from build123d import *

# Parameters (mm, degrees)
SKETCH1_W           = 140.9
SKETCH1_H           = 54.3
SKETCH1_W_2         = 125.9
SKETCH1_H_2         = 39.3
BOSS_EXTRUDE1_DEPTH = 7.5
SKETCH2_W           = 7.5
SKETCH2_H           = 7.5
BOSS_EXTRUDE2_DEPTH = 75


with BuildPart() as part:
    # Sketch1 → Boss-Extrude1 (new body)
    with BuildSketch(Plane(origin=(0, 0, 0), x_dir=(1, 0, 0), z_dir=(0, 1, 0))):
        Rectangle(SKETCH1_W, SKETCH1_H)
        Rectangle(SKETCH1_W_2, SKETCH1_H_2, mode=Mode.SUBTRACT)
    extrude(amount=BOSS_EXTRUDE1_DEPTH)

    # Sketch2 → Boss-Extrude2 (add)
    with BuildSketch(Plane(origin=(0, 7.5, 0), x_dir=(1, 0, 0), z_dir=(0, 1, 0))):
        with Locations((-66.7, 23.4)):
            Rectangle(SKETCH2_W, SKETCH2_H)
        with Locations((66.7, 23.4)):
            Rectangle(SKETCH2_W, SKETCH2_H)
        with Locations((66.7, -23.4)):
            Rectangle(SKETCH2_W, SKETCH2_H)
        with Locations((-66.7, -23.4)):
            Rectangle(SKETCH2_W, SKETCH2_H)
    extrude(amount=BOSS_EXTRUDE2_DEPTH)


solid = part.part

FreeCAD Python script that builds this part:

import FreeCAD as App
import Part
import Sketcher

doc = App.newDocument("Part")
params = doc.addObject("Spreadsheet::Sheet", "Params")
for row, (alias, value) in enumerate([
    ("sketch1_width", "140.9 mm"),
    ("sketch1_width2", "125.9 mm"),
    ("sketch1_height", "54.3 mm"),
    ("sketch1_height2", "39.3 mm"),
    ("pad1_length", "7.5 mm"),
    ("sketch2_width", "7.5 mm"),
    ("pad2_length", "75 mm"),
], start=1):
    params.set(f"A{row}", alias)
    params.set(f"B{row}", "=" + value)
    params.setAlias(f"B{row}", alias)

body = doc.addObject("PartDesign::Body", "Body")

# Sketch on XZ plane
sketch1 = body.newObject("Sketcher::SketchObject", "Sketch")
sketch1.AttachmentSupport = (doc.getObject("XZ_Plane"), [""])
sketch1.MapMode = "FlatFace"
sketch1.addGeometry(Part.LineSegment(App.Vector(-70.45, -27.15, 0), App.Vector(-70.45, 27.15, 0)), False)
sketch1.addGeometry(Part.LineSegment(App.Vector(-70.45, 27.15, 0), App.Vector(70.45, 27.15, 0)), False)
sketch1.addGeometry(Part.LineSegment(App.Vector(70.45, 27.15, 0), App.Vector(70.45, -27.15, 0)), False)
sketch1.addGeometry(Part.LineSegment(App.Vector(70.45, -27.15, 0), App.Vector(-70.45, -27.15, 0)), False)
sketch1.addGeometry(Part.LineSegment(App.Vector(62.95, 19.65, 0), App.Vector(-62.95, 19.65, 0)), False)
sketch1.addGeometry(Part.LineSegment(App.Vector(-62.95, 19.65, 0), App.Vector(-62.95, -19.65, 0)), False)
sketch1.addGeometry(Part.LineSegment(App.Vector(-62.95, -19.65, 0), App.Vector(62.95, -19.65, 0)), False)
sketch1.addGeometry(Part.LineSegment(App.Vector(62.95, -19.65, 0), App.Vector(62.95, 19.65, 0)), False)
sketch1.addConstraint(Sketcher.Constraint("Coincident", 0, 2, 1, 1))
sketch1.addConstraint(Sketcher.Constraint("Coincident", 1, 2, 2, 1))
sketch1.addConstraint(Sketcher.Constraint("Coincident", 2, 2, 3, 1))
sketch1.addConstraint(Sketcher.Constraint("Coincident", 3, 2, 0, 1))
sketch1.addConstraint(Sketcher.Constraint("Coincident", 4, 2, 5, 1))
sketch1.addConstraint(Sketcher.Constraint("Coincident", 5, 2, 6, 1))
sketch1.addConstraint(Sketcher.Constraint("Coincident", 6, 2, 7, 1))
sketch1.addConstraint(Sketcher.Constraint("Coincident", 7, 2, 4, 1))
sketch1.addConstraint(Sketcher.Constraint("Vertical", 0))
sketch1.addConstraint(Sketcher.Constraint("Horizontal", 1))
sketch1.addConstraint(Sketcher.Constraint("Vertical", 2))
sketch1.addConstraint(Sketcher.Constraint("Horizontal", 3))
sketch1.addConstraint(Sketcher.Constraint("Horizontal", 4))
sketch1.addConstraint(Sketcher.Constraint("Vertical", 5))
sketch1.addConstraint(Sketcher.Constraint("Horizontal", 6))
sketch1.addConstraint(Sketcher.Constraint("Vertical", 7))
sketch1.addConstraint(Sketcher.Constraint("Symmetric", 0, 2, 2, 2, -1, 1))
sketch1.addConstraint(Sketcher.Constraint("Symmetric", 4, 2, 6, 2, -1, 1))
sketch1.addConstraint(Sketcher.Constraint("DistanceX", 1, 1, 1, 2, 140.9))
sketch1.addConstraint(Sketcher.Constraint("DistanceX", 4, 2, 4, 1, 125.9))
sketch1.addConstraint(Sketcher.Constraint("DistanceY", 0, 1, 0, 2, 54.3))
sketch1.addConstraint(Sketcher.Constraint("DistanceY", 5, 2, 5, 1, 39.3))
sketch1.setExpression("Constraints[18]", "Params.sketch1_width")
sketch1.setExpression("Constraints[19]", "Params.sketch1_width2")
sketch1.setExpression("Constraints[20]", "Params.sketch1_height")
sketch1.setExpression("Constraints[21]", "Params.sketch1_height2")
pad1 = body.newObject("PartDesign::Pad", "Pad")
pad1.Profile = sketch1
pad1.setExpression("Length", "Params.pad1_length")
pad1.Reversed = True

# Sketch on XZ plane
sketch2 = body.newObject("Sketcher::SketchObject", "Sketch001")
sketch2.AttachmentSupport = (doc.getObject("XZ_Plane"), [""])
sketch2.MapMode = "FlatFace"
sketch2.AttachmentOffset = App.Placement(App.Vector(0, 0, -7.5), App.Rotation())
sketch2.addGeometry(Part.LineSegment(App.Vector(-70.45, -27.15, 0), App.Vector(-70.45, -19.65, 0)), False)
sketch2.addGeometry(Part.LineSegment(App.Vector(-70.45, -19.65, 0), App.Vector(-62.95, -19.65, 0)), False)
sketch2.addGeometry(Part.LineSegment(App.Vector(-62.95, -19.65, 0), App.Vector(-62.95, -27.15, 0)), False)
sketch2.addGeometry(Part.LineSegment(App.Vector(-62.95, -27.15, 0), App.Vector(-70.45, -27.15, 0)), False)
sketch2.addGeometry(Part.LineSegment(App.Vector(62.95, -27.15, 0), App.Vector(62.95, -19.65, 0)), False)
sketch2.addGeometry(Part.LineSegment(App.Vector(62.95, -19.65, 0), App.Vector(70.45, -19.65, 0)), False)
sketch2.addGeometry(Part.LineSegment(App.Vector(70.45, -19.65, 0), App.Vector(70.45, -27.15, 0)), False)
sketch2.addGeometry(Part.LineSegment(App.Vector(70.45, -27.15, 0), App.Vector(62.95, -27.15, 0)), False)
sketch2.addGeometry(Part.LineSegment(App.Vector(62.95, 19.65, 0), App.Vector(62.95, 27.15, 0)), False)
sketch2.addGeometry(Part.LineSegment(App.Vector(62.95, 27.15, 0), App.Vector(70.45, 27.15, 0)), False)
sketch2.addGeometry(Part.LineSegment(App.Vector(70.45, 27.15, 0), App.Vector(70.45, 19.65, 0)), False)
sketch2.addGeometry(Part.LineSegment(App.Vector(70.45, 19.65, 0), App.Vector(62.95, 19.65, 0)), False)
sketch2.addGeometry(Part.LineSegment(App.Vector(-70.45, 19.65, 0), App.Vector(-70.45, 27.15, 0)), False)
sketch2.addGeometry(Part.LineSegment(App.Vector(-70.45, 27.15, 0), App.Vector(-62.95, 27.15, 0)), False)
sketch2.addGeometry(Part.LineSegment(App.Vector(-62.95, 27.15, 0), App.Vector(-62.95, 19.65, 0)), False)
sketch2.addGeometry(Part.LineSegment(App.Vector(-62.95, 19.65, 0), App.Vector(-70.45, 19.65, 0)), False)
sketch2.addConstraint(Sketcher.Constraint("Coincident", 0, 2, 1, 1))
sketch2.addConstraint(Sketcher.Constraint("Coincident", 1, 2, 2, 1))
sketch2.addConstraint(Sketcher.Constraint("Coincident", 2, 2, 3, 1))
sketch2.addConstraint(Sketcher.Constraint("Coincident", 3, 2, 0, 1))
sketch2.addConstraint(Sketcher.Constraint("Coincident", 4, 2, 5, 1))
sketch2.addConstraint(Sketcher.Constraint("Coincident", 5, 2, 6, 1))
sketch2.addConstraint(Sketcher.Constraint("Coincident", 6, 2, 7, 1))
sketch2.addConstraint(Sketcher.Constraint("Coincident", 7, 2, 4, 1))
sketch2.addConstraint(Sketcher.Constraint("Coincident", 8, 2, 9, 1))
sketch2.addConstraint(Sketcher.Constraint("Coincident", 9, 2, 10, 1))
sketch2.addConstraint(Sketcher.Constraint("Coincident", 10, 2, 11, 1))
sketch2.addConstraint(Sketcher.Constraint("Coincident", 11, 2, 8, 1))
sketch2.addConstraint(Sketcher.Constraint("Coincident", 12, 2, 13, 1))
sketch2.addConstraint(Sketcher.Constraint("Coincident", 13, 2, 14, 1))
sketch2.addConstraint(Sketcher.Constraint("Coincident", 14, 2, 15, 1))
sketch2.addConstraint(Sketcher.Constraint("Coincident", 15, 2, 12, 1))
sketch2.addConstraint(Sketcher.Constraint("Vertical", 0))
sketch2.addConstraint(Sketcher.Constraint("Horizontal", 1))
sketch2.addConstraint(Sketcher.Constraint("Vertical", 2))
sketch2.addConstraint(Sketcher.Constraint("Horizontal", 3))
sketch2.addConstraint(Sketcher.Constraint("Vertical", 4))
sketch2.addConstraint(Sketcher.Constraint("Horizontal", 5))
sketch2.addConstraint(Sketcher.Constraint("Vertical", 6))
sketch2.addConstraint(Sketcher.Constraint("Horizontal", 7))
sketch2.addConstraint(Sketcher.Constraint("Vertical", 8))
sketch2.addConstraint(Sketcher.Constraint("Horizontal", 9))
sketch2.addConstraint(Sketcher.Constraint("Vertical", 10))
sketch2.addConstraint(Sketcher.Constraint("Horizontal", 11))
sketch2.addConstraint(Sketcher.Constraint("Vertical", 12))
sketch2.addConstraint(Sketcher.Constraint("Horizontal", 13))
sketch2.addConstraint(Sketcher.Constraint("Vertical", 14))
sketch2.addConstraint(Sketcher.Constraint("Horizontal", 15))
sketch2.addConstraint(Sketcher.Constraint("Symmetric", 2, 2, 8, 2, -1, 1))
sketch2.addConstraint(Sketcher.Constraint("Symmetric", 0, 2, 10, 2, -1, 1))
sketch2.addConstraint(Sketcher.Constraint("Symmetric", 6, 2, 12, 2, -1, 1))
sketch2.addConstraint(Sketcher.Constraint("Symmetric", 4, 2, 14, 2, -1, 1))
sketch2.addConstraint(Sketcher.Constraint("Symmetric", 1, 2, 4, 2, -2))
sketch2.addConstraint(Sketcher.Constraint("Symmetric", 3, 2, 6, 2, -2))
sketch2.addConstraint(Sketcher.Constraint("Equal", 15, 0))
sketch2.addConstraint(Sketcher.Constraint("DistanceX", 1, 1, 1, 2, 7.5))
sketch2.addConstraint(Sketcher.Constraint("DistanceX", 1, 2, 4, 2, 125.9))
sketch2.addConstraint(Sketcher.Constraint("DistanceY", 4, 2, 8, 2, 46.8))
sketch2.setExpression("Constraints[39]", "Params.sketch2_width")
pad2 = body.newObject("PartDesign::Pad", "Pad001")
pad2.Profile = sketch2
pad2.setExpression("Length", "Params.pad2_length")
pad2.Reversed = True

doc.recompute()
